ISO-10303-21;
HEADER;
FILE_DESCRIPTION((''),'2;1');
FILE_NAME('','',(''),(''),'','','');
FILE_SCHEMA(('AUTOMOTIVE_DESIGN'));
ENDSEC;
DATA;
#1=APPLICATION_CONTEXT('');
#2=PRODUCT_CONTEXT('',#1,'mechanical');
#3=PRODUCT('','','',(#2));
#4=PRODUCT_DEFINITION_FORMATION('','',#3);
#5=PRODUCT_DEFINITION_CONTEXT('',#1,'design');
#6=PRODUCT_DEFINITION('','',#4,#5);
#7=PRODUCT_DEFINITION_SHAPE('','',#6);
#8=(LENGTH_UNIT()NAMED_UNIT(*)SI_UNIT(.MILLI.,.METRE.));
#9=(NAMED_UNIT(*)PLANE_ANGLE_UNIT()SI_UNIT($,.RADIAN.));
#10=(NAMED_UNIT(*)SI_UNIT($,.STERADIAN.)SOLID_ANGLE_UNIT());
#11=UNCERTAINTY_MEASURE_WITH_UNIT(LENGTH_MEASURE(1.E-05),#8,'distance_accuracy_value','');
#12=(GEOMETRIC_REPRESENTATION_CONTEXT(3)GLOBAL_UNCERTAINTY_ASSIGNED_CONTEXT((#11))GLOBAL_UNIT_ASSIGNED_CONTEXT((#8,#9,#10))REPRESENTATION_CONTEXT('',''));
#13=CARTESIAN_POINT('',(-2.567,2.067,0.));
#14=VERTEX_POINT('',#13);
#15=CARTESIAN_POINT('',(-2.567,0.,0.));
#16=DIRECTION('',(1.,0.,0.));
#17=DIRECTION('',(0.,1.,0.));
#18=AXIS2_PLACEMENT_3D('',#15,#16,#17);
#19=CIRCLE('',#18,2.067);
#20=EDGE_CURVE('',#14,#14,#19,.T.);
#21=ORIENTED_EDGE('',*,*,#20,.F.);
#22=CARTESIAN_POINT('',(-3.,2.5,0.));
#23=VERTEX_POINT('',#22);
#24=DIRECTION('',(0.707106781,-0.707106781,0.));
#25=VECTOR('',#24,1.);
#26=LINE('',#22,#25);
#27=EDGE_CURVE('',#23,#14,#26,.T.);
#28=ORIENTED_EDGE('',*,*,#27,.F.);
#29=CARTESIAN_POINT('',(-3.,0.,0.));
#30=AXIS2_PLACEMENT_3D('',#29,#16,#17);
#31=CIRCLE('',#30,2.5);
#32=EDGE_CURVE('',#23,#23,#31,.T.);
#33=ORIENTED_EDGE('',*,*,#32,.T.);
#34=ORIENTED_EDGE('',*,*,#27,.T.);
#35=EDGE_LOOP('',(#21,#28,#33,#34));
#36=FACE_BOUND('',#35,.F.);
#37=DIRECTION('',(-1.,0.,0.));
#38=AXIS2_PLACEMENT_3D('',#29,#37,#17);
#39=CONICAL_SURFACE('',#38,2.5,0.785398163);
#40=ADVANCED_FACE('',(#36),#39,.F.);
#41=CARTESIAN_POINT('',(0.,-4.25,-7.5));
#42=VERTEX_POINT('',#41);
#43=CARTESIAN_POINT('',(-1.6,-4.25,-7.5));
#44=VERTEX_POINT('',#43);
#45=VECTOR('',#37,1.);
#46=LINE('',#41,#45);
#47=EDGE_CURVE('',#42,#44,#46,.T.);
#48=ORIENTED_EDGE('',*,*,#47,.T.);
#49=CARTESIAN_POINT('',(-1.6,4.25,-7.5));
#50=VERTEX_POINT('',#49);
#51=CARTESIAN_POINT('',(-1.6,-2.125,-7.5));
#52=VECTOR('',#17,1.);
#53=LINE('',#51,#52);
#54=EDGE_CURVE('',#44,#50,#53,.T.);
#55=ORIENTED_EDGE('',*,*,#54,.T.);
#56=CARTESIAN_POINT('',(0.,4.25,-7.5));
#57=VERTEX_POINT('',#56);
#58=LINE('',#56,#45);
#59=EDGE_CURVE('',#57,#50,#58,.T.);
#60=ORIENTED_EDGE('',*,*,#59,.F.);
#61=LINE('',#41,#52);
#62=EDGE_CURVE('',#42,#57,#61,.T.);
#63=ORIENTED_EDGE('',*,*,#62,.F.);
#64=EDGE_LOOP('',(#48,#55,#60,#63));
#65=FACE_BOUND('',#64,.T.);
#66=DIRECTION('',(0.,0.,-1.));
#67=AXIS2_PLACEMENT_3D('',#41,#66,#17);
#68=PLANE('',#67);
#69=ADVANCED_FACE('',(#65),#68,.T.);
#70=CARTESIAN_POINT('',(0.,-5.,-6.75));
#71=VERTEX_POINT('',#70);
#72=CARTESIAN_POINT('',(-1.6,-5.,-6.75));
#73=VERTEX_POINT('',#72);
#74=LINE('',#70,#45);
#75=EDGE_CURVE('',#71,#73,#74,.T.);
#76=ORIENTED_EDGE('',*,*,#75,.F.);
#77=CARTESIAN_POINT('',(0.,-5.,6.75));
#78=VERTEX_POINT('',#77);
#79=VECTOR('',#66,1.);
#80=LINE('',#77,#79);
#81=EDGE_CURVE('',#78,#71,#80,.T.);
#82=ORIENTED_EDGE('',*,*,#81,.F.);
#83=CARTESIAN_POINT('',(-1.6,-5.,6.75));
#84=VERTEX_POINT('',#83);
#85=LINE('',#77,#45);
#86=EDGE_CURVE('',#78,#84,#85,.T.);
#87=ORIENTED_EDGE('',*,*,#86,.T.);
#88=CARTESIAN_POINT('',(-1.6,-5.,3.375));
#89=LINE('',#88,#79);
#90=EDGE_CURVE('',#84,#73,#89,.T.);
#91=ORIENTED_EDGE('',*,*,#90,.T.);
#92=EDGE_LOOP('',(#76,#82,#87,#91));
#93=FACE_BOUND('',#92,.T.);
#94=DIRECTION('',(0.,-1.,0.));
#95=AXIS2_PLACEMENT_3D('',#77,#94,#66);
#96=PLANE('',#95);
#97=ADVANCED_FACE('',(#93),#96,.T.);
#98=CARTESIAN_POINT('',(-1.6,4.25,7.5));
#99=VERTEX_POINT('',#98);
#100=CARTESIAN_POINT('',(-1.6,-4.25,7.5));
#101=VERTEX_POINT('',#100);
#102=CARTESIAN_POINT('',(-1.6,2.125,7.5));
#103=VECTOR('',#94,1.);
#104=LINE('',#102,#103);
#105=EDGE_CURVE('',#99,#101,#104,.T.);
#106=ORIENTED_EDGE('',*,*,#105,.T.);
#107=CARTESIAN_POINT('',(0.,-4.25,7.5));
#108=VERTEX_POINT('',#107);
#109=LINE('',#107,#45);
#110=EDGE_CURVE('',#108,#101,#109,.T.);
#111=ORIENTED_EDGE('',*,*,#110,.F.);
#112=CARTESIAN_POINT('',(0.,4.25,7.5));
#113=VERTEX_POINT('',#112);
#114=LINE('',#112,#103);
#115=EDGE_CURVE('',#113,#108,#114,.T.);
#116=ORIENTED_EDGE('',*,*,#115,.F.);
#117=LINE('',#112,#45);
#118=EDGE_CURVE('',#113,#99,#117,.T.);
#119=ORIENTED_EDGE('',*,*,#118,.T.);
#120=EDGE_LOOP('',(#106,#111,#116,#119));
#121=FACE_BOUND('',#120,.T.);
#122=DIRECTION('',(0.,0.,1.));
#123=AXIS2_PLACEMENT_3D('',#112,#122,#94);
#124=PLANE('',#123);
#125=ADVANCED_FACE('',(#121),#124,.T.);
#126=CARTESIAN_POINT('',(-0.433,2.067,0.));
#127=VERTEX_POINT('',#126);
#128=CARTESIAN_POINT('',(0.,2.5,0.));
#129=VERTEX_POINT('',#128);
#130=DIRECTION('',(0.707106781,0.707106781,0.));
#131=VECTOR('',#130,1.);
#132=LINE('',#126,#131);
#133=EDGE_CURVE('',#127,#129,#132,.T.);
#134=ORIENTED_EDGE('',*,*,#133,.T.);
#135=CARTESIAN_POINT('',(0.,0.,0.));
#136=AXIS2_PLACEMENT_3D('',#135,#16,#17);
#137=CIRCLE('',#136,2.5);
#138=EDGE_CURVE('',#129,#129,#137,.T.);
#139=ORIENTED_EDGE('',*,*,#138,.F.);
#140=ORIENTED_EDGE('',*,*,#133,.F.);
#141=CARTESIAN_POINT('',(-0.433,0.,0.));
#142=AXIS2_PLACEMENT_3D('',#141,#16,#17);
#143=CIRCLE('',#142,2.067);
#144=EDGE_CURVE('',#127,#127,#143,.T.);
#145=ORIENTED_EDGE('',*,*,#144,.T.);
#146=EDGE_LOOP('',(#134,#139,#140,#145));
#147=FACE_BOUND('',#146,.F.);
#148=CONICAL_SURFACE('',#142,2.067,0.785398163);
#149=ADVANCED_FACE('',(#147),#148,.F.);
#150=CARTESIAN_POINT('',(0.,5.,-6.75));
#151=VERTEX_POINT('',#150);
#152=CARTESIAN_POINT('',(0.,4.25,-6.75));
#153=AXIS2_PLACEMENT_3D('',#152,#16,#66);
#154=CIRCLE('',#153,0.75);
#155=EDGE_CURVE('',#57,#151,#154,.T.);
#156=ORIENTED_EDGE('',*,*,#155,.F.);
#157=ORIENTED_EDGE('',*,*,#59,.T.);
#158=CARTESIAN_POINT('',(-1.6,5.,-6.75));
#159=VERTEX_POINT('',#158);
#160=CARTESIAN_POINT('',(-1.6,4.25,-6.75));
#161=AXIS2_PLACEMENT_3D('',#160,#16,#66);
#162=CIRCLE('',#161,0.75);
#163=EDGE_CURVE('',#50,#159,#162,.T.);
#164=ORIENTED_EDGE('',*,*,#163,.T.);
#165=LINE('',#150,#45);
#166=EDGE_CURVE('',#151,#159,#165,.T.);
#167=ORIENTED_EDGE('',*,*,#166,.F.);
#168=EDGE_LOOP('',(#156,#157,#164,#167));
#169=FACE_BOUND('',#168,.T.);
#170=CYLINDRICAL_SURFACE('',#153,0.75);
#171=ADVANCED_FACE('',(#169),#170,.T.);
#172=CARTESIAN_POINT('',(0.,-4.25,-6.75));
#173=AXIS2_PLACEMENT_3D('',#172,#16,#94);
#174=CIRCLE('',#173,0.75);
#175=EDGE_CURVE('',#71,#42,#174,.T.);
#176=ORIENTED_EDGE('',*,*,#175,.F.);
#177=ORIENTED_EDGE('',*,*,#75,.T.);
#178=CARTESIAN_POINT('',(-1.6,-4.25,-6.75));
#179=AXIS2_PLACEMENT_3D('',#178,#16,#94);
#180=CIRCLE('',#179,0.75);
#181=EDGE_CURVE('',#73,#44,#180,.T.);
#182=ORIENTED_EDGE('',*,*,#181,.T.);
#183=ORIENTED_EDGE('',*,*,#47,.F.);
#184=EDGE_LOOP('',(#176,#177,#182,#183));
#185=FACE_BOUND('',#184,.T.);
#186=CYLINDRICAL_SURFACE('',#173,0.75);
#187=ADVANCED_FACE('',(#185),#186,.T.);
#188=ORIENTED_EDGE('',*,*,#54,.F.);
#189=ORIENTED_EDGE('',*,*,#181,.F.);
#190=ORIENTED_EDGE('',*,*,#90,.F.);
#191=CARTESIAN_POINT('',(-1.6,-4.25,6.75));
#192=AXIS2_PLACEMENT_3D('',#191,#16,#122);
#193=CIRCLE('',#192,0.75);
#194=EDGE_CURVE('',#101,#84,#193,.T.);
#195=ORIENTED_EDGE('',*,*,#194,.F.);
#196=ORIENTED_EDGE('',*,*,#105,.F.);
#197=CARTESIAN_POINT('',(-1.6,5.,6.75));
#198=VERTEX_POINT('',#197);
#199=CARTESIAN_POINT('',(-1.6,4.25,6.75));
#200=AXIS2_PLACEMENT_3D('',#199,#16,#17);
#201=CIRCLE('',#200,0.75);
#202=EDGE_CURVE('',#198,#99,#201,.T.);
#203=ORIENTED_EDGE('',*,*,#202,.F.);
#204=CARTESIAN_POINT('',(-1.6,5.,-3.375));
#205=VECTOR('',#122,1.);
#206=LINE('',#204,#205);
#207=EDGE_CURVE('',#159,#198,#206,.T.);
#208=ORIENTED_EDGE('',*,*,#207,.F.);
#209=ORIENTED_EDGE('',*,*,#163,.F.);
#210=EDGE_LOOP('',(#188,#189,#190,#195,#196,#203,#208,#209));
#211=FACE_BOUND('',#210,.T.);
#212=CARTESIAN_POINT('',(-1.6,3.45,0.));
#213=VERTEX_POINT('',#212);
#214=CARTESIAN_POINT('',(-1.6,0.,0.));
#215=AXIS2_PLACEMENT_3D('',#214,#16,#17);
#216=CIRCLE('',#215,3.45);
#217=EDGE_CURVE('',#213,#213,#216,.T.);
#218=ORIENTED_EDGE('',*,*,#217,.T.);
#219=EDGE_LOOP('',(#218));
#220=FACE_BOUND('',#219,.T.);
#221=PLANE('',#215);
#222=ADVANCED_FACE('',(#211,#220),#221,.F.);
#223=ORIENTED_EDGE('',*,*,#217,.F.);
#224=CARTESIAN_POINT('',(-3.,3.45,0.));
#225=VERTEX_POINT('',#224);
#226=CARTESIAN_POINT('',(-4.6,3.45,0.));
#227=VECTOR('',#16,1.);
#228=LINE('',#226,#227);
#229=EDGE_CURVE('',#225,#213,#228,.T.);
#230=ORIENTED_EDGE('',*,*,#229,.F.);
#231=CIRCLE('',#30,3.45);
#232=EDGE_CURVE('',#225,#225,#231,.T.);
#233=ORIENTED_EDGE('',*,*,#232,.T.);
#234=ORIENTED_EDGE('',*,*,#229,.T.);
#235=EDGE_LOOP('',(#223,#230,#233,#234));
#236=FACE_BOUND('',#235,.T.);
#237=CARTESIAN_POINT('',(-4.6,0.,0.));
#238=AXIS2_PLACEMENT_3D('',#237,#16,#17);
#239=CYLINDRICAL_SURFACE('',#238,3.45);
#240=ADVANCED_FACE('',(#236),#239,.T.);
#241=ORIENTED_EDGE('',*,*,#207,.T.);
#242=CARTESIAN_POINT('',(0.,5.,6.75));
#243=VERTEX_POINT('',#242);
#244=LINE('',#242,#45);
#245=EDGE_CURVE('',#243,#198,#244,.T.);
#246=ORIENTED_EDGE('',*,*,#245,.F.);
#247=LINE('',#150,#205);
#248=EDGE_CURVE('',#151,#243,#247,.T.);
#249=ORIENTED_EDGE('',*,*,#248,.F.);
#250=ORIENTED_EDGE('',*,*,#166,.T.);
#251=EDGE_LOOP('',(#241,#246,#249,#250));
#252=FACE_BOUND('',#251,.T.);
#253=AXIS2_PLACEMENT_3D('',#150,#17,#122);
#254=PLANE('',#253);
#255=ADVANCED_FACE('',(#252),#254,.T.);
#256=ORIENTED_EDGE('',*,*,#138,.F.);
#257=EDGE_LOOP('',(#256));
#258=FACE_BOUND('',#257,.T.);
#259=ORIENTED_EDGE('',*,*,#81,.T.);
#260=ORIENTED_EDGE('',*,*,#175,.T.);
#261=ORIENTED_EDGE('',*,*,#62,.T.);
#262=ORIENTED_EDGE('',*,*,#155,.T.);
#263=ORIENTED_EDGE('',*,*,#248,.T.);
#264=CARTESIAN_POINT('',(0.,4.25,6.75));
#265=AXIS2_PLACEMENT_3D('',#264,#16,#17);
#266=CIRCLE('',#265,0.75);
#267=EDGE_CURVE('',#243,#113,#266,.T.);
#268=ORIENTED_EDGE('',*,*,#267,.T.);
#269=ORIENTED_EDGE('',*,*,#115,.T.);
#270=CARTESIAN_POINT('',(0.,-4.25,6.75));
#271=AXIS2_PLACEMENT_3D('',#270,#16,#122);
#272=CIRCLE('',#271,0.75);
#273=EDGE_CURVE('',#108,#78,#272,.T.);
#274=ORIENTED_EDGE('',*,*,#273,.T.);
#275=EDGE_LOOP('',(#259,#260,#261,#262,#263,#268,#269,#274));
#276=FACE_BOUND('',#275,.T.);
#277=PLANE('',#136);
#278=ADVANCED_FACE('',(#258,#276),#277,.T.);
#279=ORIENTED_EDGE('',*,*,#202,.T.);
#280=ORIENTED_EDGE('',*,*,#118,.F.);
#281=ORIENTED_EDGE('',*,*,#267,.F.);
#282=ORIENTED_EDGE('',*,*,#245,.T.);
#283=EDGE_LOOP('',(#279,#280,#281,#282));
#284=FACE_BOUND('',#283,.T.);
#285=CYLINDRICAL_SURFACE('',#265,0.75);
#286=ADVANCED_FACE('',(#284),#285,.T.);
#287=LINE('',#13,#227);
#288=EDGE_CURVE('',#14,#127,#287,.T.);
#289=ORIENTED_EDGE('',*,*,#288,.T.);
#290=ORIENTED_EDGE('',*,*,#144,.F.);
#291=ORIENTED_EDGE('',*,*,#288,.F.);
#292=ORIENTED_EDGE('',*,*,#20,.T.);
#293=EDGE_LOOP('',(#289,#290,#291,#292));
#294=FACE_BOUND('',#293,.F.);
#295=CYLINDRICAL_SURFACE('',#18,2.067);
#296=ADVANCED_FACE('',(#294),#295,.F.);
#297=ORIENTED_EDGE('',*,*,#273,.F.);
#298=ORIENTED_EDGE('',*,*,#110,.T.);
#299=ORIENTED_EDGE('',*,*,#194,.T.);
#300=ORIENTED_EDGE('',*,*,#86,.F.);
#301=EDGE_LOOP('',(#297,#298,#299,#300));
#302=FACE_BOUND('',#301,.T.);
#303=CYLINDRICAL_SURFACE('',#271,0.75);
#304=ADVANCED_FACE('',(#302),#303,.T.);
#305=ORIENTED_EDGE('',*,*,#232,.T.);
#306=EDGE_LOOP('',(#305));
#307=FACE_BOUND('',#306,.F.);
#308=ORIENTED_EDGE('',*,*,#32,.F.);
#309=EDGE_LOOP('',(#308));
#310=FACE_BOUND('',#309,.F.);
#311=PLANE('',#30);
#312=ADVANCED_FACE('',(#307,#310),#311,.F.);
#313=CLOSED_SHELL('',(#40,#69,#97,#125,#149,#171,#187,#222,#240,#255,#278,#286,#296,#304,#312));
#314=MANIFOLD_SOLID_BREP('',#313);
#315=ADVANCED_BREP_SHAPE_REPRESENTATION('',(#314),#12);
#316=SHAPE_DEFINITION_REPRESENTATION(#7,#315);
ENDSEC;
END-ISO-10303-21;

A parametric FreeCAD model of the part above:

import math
import FreeCAD as App
import Part
import Sketcher

V = App.Vector
Q = App.Units.Quantity


def add_polygon(sketch, points):
    """Adds a closed chain of lines whose ends are joined by coincident constraints."""
    first, n = sketch.GeometryCount, len(points)
    for a, b in zip(points, points[1:] + points[:1]):
        sketch.addGeometry(Part.LineSegment(App.Vector(*a, 0), App.Vector(*b, 0)), False)
    for i in range(n):
        sketch.addConstraint(Sketcher.Constraint("Coincident", first + i, 2, first + (i + 1) % n, 1))

doc = App.newDocument("Part")
params = doc.addObject("Spreadsheet::Sheet", "Params")
for row, (alias, value) in enumerate([
    ("sketch1_radius", "0.75 mm"),
    ("sketch1_width", "8.5 mm"),
    ("sketch1_height", "13.5 mm"),
    ("pad1_length", "3 mm"),
    ("sketch2_width", "3 mm"),
    ("sketch2_height", "10 mm"),
    ("groove_angle", "360 deg"),
    ("sketch3_width", "3 mm"),
    ("sketch3_height", "2.5 mm"),
    ("groove2_angle", "360 deg"),
], start=1):
    params.set(f"A{row}", alias)
    params.set(f"B{row}", "=" + value)
    params.setAlias(f"B{row}", alias)

body = doc.addObject("PartDesign::Body", "Body")

sketch1 = doc.addObject("Sketcher::SketchObject", "Sketch")
body.addObject(sketch1)
sketch1.AttachmentSupport = (doc.YZ_Plane, [""])
sketch1.MapMode = "FlatFace"
sketch1.addGeometry([
    Part.ArcOfCircle(Part.Circle(V(4.2, 6.8, 0), V(0, 0, 1), 0.8), math.radians(0), math.radians(90)),
    Part.LineSegment(V(4.2, 7.5, 0), V(-4.2, 7.5, 0)),
    Part.ArcOfCircle(Part.Circle(V(-4.2, 6.8, 0), V(0, 0, 1), 0.8), math.radians(90), math.radians(180)),
    Part.LineSegment(V(-5, 6.8, 0), V(-5, -6.8, 0)),
    Part.ArcOfCircle(Part.Circle(V(-4.2, -6.8, 0), V(0, 0, 1), 0.8), math.radians(180), math.radians(270)),
    Part.LineSegment(V(-4.2, -7.5, 0), V(4.2, -7.5, 0)),
    Part.ArcOfCircle(Part.Circle(V(4.2, -6.8, 0), V(0, 0, 1), 0.8), math.radians(-90), math.radians(0)),
    Part.LineSegment(V(5, -6.8, 0), V(5, 6.8, 0)),
], False)
sketch1.addConstraint([
    Sketcher.Constraint("Tangent", 0, 2, 1, 1),
    Sketcher.Constraint("Tangent", 1, 2, 2, 1),
    Sketcher.Constraint("Tangent", 2, 2, 3, 1),
    Sketcher.Constraint("Tangent", 3, 2, 4, 1),
    Sketcher.Constraint("Tangent", 4, 2, 5, 1),
    Sketcher.Constraint("Tangent", 5, 2, 6, 1),
    Sketcher.Constraint("Tangent", 6, 2, 7, 1),
    Sketcher.Constraint("Tangent", 7, 2, 0, 1),
    Sketcher.Constraint("Horizontal", 1),
    Sketcher.Constraint("Vertical", 3),
    Sketcher.Constraint("Horizontal", 5),
    Sketcher.Constraint("Vertical", 7),
    Sketcher.Constraint("Equal", 0, 2),
    Sketcher.Constraint("Equal", 2, 4),
    Sketcher.Constraint("Equal", 4, 6),
    Sketcher.Constraint("Symmetric", 0, 3, 4, 3, -1, 1),
    Sketcher.Constraint("Radius", 0, Q("0.75 mm")),
    Sketcher.Constraint("DistanceX", 1, 2, 1, 1, Q("8.5 mm")),
    Sketcher.Constraint("DistanceY", 3, 2, 3, 1, Q("13.5 mm")),
])
sketch1.setExpression("Constraints[16]", "Params.sketch1_radius")
sketch1.setExpression("Constraints[17]", "Params.sketch1_width")
sketch1.setExpression("Constraints[18]", "Params.sketch1_height")
pad1 = doc.addObject("PartDesign::Pad", "Pad")
body.addObject(pad1)
pad1.Profile = sketch1
pad1.setExpression("Length", "Params.pad1_length")
pad1.Reversed = True

sketch2 = doc.addObject("Sketcher::SketchObject", "Sketch001")
body.addObject(sketch2)
sketch2.AttachmentSupport = (doc.XY_Plane, [""])
sketch2.MapMode = "FlatFace"
add_polygon(sketch2, [(-4.6, 13.4), (-4.6, 3.5), (-1.6, 3.5), (-1.6, 13.4)])
sketch2.addConstraint([
    Sketcher.Constraint("Vertical", 0),
    Sketcher.Constraint("Horizontal", 1),
    Sketcher.Constraint("Vertical", 2),
    Sketcher.Constraint("Horizontal", 3),
    Sketcher.Constraint("DistanceX", 1, 1, 1, 2, Q("3 mm")),
    Sketcher.Constraint("DistanceY", 0, 2, 0, 1, Q("10 mm")),
    Sketcher.Constraint("DistanceX", 0, 2, -1, 1, Q("4.6 mm")),
    Sketcher.Constraint("DistanceY", -1, 1, 0, 2, Q("3.45 mm")),
])
sketch2.setExpression("Constraints[8]", "Params.sketch2_width")
sketch2.setExpression("Constraints[9]", "Params.sketch2_height")
groove = doc.addObject("PartDesign::Groove", "Groove")
body.addObject(groove)
groove.Profile = sketch2
groove.ReferenceAxis = (sketch2, ["H_Axis"])
groove.setExpression("Angle", "Params.groove_angle")

sketch3 = doc.addObject("Sketcher::SketchObject", "Sketch002")
body.addObject(sketch3)
sketch3.AttachmentSupport = (doc.XY_Plane, [""])
sketch3.MapMode = "FlatFace"
add_polygon(sketch3, [(-3, 0), (0, 0), (0, 2.5), (-0.4, 2.1), (-2.6, 2.1), (-3, 2.5)])
sketch3.addConstraint([
    Sketcher.Constraint("Horizontal", 0),
    Sketcher.Constraint("Vertical", 1),
    Sketcher.Constraint("Horizontal", 3),
    Sketcher.Constraint("Vertical", 5),
    Sketcher.Constraint("Coincident", 0, 2, -1, 1),
    Sketcher.Constraint("Perpendicular", 2, 4),
    Sketcher.Constraint("Horizontal", 1, 2, 4, 2),
    Sketcher.Constraint("Equal", 2, 4),
    Sketcher.Constraint("DistanceX", 0, 1, 0, 2, Q("3 mm")),
    Sketcher.Constraint("DistanceY", 1, 1, 1, 2, Q("2.5 mm")),
    Sketcher.Constraint("DistanceX", 3, 2, 3, 1, Q("2.134 mm")),
])
sketch3.setExpression("Constraints[14]", "Params.sketch3_width")
sketch3.setExpression("Constraints[15]", "Params.sketch3_height")
groove2 = doc.addObject("PartDesign::Groove", "Groove001")
body.addObject(groove2)
groove2.Profile = sketch3
groove2.ReferenceAxis = (sketch3, ["H_Axis"])
groove2.setExpression("Angle", "Params.groove2_angle")

doc.recompute()
